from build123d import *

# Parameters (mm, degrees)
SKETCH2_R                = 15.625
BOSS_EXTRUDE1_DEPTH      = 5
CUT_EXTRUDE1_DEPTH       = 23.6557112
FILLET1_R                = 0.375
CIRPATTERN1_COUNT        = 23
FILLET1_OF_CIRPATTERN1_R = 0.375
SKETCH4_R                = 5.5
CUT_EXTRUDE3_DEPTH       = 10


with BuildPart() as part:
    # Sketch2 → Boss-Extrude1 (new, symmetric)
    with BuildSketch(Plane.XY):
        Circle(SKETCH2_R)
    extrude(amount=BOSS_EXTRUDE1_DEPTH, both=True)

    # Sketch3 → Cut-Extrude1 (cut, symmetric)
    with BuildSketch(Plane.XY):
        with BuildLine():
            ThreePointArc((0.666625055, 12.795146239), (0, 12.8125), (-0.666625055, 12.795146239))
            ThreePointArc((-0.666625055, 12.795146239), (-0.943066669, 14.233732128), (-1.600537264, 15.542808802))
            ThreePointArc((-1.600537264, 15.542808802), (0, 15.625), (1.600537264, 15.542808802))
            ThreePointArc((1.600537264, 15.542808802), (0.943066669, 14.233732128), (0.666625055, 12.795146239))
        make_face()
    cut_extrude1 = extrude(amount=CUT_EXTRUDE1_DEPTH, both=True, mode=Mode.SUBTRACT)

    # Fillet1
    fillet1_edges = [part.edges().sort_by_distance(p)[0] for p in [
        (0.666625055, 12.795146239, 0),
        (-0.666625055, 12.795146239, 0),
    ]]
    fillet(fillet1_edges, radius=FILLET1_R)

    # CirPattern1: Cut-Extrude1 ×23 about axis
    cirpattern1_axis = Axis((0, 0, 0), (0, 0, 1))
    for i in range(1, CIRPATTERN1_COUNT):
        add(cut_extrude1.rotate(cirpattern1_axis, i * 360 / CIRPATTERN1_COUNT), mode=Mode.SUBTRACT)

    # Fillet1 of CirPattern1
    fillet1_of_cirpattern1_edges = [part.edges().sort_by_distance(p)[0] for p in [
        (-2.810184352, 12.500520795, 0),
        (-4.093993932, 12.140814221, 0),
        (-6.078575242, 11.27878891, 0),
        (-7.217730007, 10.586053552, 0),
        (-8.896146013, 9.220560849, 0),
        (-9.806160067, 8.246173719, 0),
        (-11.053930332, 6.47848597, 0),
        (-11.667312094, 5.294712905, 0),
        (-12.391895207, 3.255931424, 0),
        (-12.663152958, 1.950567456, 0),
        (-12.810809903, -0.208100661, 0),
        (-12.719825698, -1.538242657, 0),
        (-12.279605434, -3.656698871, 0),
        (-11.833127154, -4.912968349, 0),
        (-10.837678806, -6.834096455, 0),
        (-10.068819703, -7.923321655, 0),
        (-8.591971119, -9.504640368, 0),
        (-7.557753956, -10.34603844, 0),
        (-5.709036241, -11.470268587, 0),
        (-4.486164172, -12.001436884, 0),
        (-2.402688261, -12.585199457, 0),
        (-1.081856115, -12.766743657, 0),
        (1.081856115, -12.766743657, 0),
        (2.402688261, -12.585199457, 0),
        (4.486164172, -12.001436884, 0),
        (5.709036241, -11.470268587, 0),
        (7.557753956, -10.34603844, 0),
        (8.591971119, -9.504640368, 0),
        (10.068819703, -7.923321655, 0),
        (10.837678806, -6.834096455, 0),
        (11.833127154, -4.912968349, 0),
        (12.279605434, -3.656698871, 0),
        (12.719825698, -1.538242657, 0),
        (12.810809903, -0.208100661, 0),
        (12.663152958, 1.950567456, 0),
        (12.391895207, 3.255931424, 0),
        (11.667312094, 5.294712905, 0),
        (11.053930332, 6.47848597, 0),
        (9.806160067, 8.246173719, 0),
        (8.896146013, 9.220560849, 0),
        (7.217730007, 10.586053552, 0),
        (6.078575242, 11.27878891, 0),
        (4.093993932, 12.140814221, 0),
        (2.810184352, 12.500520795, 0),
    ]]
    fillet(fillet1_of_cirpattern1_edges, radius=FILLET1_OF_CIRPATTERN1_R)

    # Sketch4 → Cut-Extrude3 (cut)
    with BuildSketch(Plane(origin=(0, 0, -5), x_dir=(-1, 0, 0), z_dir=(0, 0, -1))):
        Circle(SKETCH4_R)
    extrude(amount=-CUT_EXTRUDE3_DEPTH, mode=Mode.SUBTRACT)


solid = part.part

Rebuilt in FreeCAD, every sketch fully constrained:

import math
import FreeCAD as App
import Part
import Sketcher

V = App.Vector


def edges_at(feature, points):
    """Names of the edges that pass closest to the given points."""
    edges = feature.Shape.Edges
    near = lambda p: min(range(len(edges)), key=lambda i: edges[i].distToShape(Part.Vertex(*p))[0])
    return sorted({f"Edge{near(p) + 1}" for p in points})

doc = App.newDocument("Part")
params = doc.addObject("Spreadsheet::Sheet", "Params")
for row, (alias, value) in enumerate([
    ("sketch1_diameter", "31.25 mm"),
    ("pad1_length", "10 mm"),
    ("pocket1_length", "47.311422 mm"),
    ("fillet_radius", "0.375 mm"),
    ("fillet2_radius", "0.375 mm"),
    ("sketch3_diameter", "11 mm"),
    ("pocket2_length", "10 mm"),
], start=1):
    params.set(f"A{row}", alias)
    params.set(f"B{row}", "=" + value)
    params.setAlias(f"B{row}", alias)

body = doc.addObject("PartDesign::Body", "Body")

sketch1 = body.newObject("Sketcher::SketchObject", "Sketch")
sketch1.AttachmentSupport = (doc.getObject("XY_Plane"), [""])
sketch1.MapMode = "FlatFace"
sketch1.addGeometry(Part.Circle(V(0, 0, 0), V(0, 0, 1), 16), False)
sketch1.addConstraint([
    Sketcher.Constraint("Coincident", 0, 3, -1, 1),
    Sketcher.Constraint("Diameter", 0, 31.25),
])
sketch1.setExpression("Constraints[1]", "Params.sketch1_diameter")
pad1 = body.newObject("PartDesign::Pad", "Pad")
pad1.Profile = sketch1
pad1.setExpression("Length", "Params.pad1_length")
pad1.Midplane = True

sketch2 = body.newObject("Sketcher::SketchObject", "Sketch001")
sketch2.AttachmentSupport = (doc.getObject("XY_Plane"), [""])
sketch2.MapMode = "FlatFace"
sketch2.addGeometry([
    Part.ArcOfCircle(Part.Circle(V(0, 0, 0), V(0, 0, 1), 12.8), math.radians(87.02), math.radians(92.98)),
    Part.ArcOfCircle(Part.Circle(V(6, 12.5, 0), V(0, 0, 1), 5.3), math.radians(145), math.radians(177)),
    Part.ArcOfCircle(Part.Circle(V(0, 0, 0), V(0, 0, 1), 15.6), math.radians(84.12), math.radians(95.88)),
    Part.ArcOfCircle(Part.Circle(V(-6, 12.5, 0), V(0, 0, 1), 5.3), math.radians(3), math.radians(35)),
], False)
sketch2.addConstraint([
    Sketcher.Constraint("Coincident", 0, 1, 1, 2),
    Sketcher.Constraint("Coincident", 1, 1, 2, 1),
    Sketcher.Constraint("Coincident", 2, 2, 3, 2),
    Sketcher.Constraint("Coincident", 3, 1, 0, 2),
    Sketcher.Constraint("Coincident", 0, 3, -1, 1),
    Sketcher.Constraint("Coincident", 2, 3, -1, 1),
    Sketcher.Constraint("Equal", 1, 3),
    Sketcher.Constraint("Symmetric", 1, 3, 3, 3, -2),
    Sketcher.Constraint("Radius", 2, 15.625),
    Sketcher.Constraint("Radius", 0, 12.8125),
    Sketcher.Constraint("Radius", 1, 5.332383),
    Sketcher.Constraint("DistanceY", -1, 1, 1, 1, 15.542809),
    Sketcher.Constraint("DistanceX", 3, 3, 1, 3, 11.983571),
])
pocket1 = body.newObject("PartDesign::Pocket", "Pocket")
pocket1.Profile = sketch2
pocket1.setExpression("Length", "Params.pocket1_length")
pocket1.Midplane = True
doc.recompute()

fillet = body.newObject("PartDesign::Fillet", "Fillet")
fillet.Base = (pocket1, edges_at(pocket1, [(0.667, 12.795, 0), (-0.667, 12.795, 0)]))
fillet.setExpression("Radius", "Params.fillet_radius")
doc.recompute()

polarpattern = body.newObject("PartDesign::PolarPattern", "PolarPattern")
polarpattern.Originals = [pocket1]
polarpattern.Axis = (doc.getObject("Z_Axis"), [""])
polarpattern.Angle = 360
polarpattern.Occurrences = 23
body.Tip = polarpattern
doc.recompute()

fillet2 = body.newObject("PartDesign::Fillet", "Fillet001")
fillet2.Base = (polarpattern, edges_at(polarpattern, [
    (-2.81, 12.501, 0),
    (-4.094, 12.141, 0),
    (-6.079, 11.279, 0),
    (-7.218, 10.586, 0),
    (-8.896, 9.221, 0),
    (-9.806, 8.246, 0),
    (-11.054, 6.478, 0),
    (-11.667, 5.295, 0),
    (-12.392, 3.256, 0),
    (-12.663, 1.951, 0),
    (-12.811, -0.208, 0),
    (-12.72, -1.538, 0),
    (-12.28, -3.657, 0),
    (-11.833, -4.913, 0),
    (-10.838, -6.834, 0),
    (-10.069, -7.923, 0),
    (-8.592, -9.505, 0),
    (-7.558, -10.346, 0),
    (-5.709, -11.47, 0),
    (-4.486, -12.001, 0),
    (-2.403, -12.585, 0),
    (-1.082, -12.767, 0),
    (1.082, -12.767, 0),
    (2.403, -12.585, 0),
    (4.486, -12.001, 0),
    (5.709, -11.47, 0),
    (7.558, -10.346, 0),
    (8.592, -9.505, 0),
    (10.069, -7.923, 0),
    (10.838, -6.834, 0),
    (11.833, -4.913, 0),
    (12.28, -3.657, 0),
    (12.72, -1.538, 0),
    (12.811, -0.208, 0),
    (12.663, 1.951, 0),
    (12.392, 3.256, 0),
    (11.667, 5.295, 0),
    (11.054, 6.478, 0),
    (9.806, 8.246, 0),
    (8.896, 9.221, 0),
    (7.218, 10.586, 0),
    (6.079, 11.279, 0),
    (4.094, 12.141, 0),
    (2.81, 12.501, 0),
]))
fillet2.setExpression("Radius", "Params.fillet2_radius")

sketch3 = body.newObject("Sketcher::SketchObject", "Sketch002")
sketch3.AttachmentSupport = (doc.getObject("XY_Plane"), [""])
sketch3.MapMode = "FlatFace"
sketch3.AttachmentOffset = App.Placement(V(0, 0, -5), App.Rotation())
sketch3.addGeometry(Part.Circle(V(0, 0, 0), V(0, 0, 1), 6), False)
sketch3.addConstraint([
    Sketcher.Constraint("Coincident", 0, 3, -1, 1),
    Sketcher.Constraint("Diameter", 0, 11.0),
])
sketch3.setExpression("Constraints[1]", "Params.sketch3_diameter")
pocket2 = body.newObject("PartDesign::Pocket", "Pocket001")
pocket2.Profile = sketch3
pocket2.setExpression("Length", "Params.pocket2_length")
pocket2.Reversed = True

doc.recompute()
